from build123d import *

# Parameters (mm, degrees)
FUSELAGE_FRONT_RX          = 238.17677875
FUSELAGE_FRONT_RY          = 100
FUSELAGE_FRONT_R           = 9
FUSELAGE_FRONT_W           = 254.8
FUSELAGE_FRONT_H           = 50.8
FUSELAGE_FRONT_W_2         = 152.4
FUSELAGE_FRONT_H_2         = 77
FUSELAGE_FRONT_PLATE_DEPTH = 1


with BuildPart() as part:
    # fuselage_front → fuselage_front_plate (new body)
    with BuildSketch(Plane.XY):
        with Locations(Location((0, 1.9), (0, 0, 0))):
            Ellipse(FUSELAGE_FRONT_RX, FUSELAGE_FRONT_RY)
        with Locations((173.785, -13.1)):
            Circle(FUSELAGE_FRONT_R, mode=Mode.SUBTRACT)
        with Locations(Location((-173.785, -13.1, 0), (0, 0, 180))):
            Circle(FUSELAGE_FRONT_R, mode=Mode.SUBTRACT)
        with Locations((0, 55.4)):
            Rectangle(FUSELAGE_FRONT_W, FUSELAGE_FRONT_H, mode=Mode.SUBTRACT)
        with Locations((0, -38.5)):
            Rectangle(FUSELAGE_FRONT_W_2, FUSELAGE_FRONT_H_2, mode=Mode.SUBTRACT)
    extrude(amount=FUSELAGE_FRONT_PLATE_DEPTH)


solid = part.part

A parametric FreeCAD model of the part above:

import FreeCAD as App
import Part
import Sketcher

V = App.Vector


def add_polygon(sketch, points):
    """Adds a closed chain of lines whose ends are joined by coincident constraints."""
    first, n = sketch.GeometryCount, len(points)
    for a, b in zip(points, points[1:] + points[:1]):
        sketch.addGeometry(Part.LineSegment(App.Vector(*a, 0), App.Vector(*b, 0)), False)
    for i in range(n):
        sketch.addConstraint(Sketcher.Constraint("Coincident", first + i, 2, first + (i + 1) % n, 1))

doc = App.newDocument("Part")
body = doc.addObject("PartDesign::Body", "Body")

sketch1 = body.newObject("Sketcher::SketchObject", "Sketch")
sketch1.AttachmentSupport = (doc.getObject("XY_Plane"), [""])
sketch1.MapMode = "FlatFace"
sketch1.addGeometry(Part.Ellipse(V(238.176779, 1.9, 0), V(0, 101.9, 0), V(0, 1.9, 0)), False)
sketch1.addGeometry(Part.Circle(V(-173.785, -13.1, 0), V(0, 0, 1), 9), False)
add_polygon(sketch1, [(76.2, -77), (-76.2, -77), (-76.2, 0), (76.2, 0)])
sketch1.addGeometry(Part.Circle(V(173.785, -13.1, 0), V(0, 0, 1), 9), False)
add_polygon(sketch1, [(127.4, 30), (-127.4, 30), (-127.4, 80.8), (127.4, 80.8)])
sketch1.addConstraint([
    Sketcher.Constraint("Block", 0),
    Sketcher.Constraint("Horizontal", 2),
    Sketcher.Constraint("Vertical", 3),
    Sketcher.Constraint("Horizontal", 4),
    Sketcher.Constraint("Vertical", 5),
    Sketcher.Constraint("Horizontal", 7),
    Sketcher.Constraint("Vertical", 8),
    Sketcher.Constraint("Horizontal", 9),
    Sketcher.Constraint("Vertical", 10),
    Sketcher.Constraint("Equal", 1, 6),
    Sketcher.Constraint("Symmetric", 3, 2, 4, 2, -1, 1),
    Sketcher.Constraint("Symmetric", 1, 3, 6, 3, -2),
    Sketcher.Constraint("Diameter", 1, 18.0),
    Sketcher.Constraint("DistanceY", 3, 1, 3, 2, 77.0),
    Sketcher.Constraint("DistanceX", 2, 2, 2, 1, 152.4),
    Sketcher.Constraint("DistanceX", 7, 2, 7, 1, 254.8),
    Sketcher.Constraint("DistanceY", 8, 1, 8, 2, 50.8),
    Sketcher.Constraint("DistanceY", -1, 1, 7, 2, 30.0),
    Sketcher.Constraint("DistanceY", 1, 3, -1, 1, 13.1),
    Sketcher.Constraint("DistanceX", 7, 2, -1, 1, 127.4),
    Sketcher.Constraint("DistanceX", 1, 3, 6, 3, 347.57),
])
pad1 = body.newObject("PartDesign::Pad", "Pad")
pad1.Profile = sketch1
pad1.Length = 1

doc.recompute()
